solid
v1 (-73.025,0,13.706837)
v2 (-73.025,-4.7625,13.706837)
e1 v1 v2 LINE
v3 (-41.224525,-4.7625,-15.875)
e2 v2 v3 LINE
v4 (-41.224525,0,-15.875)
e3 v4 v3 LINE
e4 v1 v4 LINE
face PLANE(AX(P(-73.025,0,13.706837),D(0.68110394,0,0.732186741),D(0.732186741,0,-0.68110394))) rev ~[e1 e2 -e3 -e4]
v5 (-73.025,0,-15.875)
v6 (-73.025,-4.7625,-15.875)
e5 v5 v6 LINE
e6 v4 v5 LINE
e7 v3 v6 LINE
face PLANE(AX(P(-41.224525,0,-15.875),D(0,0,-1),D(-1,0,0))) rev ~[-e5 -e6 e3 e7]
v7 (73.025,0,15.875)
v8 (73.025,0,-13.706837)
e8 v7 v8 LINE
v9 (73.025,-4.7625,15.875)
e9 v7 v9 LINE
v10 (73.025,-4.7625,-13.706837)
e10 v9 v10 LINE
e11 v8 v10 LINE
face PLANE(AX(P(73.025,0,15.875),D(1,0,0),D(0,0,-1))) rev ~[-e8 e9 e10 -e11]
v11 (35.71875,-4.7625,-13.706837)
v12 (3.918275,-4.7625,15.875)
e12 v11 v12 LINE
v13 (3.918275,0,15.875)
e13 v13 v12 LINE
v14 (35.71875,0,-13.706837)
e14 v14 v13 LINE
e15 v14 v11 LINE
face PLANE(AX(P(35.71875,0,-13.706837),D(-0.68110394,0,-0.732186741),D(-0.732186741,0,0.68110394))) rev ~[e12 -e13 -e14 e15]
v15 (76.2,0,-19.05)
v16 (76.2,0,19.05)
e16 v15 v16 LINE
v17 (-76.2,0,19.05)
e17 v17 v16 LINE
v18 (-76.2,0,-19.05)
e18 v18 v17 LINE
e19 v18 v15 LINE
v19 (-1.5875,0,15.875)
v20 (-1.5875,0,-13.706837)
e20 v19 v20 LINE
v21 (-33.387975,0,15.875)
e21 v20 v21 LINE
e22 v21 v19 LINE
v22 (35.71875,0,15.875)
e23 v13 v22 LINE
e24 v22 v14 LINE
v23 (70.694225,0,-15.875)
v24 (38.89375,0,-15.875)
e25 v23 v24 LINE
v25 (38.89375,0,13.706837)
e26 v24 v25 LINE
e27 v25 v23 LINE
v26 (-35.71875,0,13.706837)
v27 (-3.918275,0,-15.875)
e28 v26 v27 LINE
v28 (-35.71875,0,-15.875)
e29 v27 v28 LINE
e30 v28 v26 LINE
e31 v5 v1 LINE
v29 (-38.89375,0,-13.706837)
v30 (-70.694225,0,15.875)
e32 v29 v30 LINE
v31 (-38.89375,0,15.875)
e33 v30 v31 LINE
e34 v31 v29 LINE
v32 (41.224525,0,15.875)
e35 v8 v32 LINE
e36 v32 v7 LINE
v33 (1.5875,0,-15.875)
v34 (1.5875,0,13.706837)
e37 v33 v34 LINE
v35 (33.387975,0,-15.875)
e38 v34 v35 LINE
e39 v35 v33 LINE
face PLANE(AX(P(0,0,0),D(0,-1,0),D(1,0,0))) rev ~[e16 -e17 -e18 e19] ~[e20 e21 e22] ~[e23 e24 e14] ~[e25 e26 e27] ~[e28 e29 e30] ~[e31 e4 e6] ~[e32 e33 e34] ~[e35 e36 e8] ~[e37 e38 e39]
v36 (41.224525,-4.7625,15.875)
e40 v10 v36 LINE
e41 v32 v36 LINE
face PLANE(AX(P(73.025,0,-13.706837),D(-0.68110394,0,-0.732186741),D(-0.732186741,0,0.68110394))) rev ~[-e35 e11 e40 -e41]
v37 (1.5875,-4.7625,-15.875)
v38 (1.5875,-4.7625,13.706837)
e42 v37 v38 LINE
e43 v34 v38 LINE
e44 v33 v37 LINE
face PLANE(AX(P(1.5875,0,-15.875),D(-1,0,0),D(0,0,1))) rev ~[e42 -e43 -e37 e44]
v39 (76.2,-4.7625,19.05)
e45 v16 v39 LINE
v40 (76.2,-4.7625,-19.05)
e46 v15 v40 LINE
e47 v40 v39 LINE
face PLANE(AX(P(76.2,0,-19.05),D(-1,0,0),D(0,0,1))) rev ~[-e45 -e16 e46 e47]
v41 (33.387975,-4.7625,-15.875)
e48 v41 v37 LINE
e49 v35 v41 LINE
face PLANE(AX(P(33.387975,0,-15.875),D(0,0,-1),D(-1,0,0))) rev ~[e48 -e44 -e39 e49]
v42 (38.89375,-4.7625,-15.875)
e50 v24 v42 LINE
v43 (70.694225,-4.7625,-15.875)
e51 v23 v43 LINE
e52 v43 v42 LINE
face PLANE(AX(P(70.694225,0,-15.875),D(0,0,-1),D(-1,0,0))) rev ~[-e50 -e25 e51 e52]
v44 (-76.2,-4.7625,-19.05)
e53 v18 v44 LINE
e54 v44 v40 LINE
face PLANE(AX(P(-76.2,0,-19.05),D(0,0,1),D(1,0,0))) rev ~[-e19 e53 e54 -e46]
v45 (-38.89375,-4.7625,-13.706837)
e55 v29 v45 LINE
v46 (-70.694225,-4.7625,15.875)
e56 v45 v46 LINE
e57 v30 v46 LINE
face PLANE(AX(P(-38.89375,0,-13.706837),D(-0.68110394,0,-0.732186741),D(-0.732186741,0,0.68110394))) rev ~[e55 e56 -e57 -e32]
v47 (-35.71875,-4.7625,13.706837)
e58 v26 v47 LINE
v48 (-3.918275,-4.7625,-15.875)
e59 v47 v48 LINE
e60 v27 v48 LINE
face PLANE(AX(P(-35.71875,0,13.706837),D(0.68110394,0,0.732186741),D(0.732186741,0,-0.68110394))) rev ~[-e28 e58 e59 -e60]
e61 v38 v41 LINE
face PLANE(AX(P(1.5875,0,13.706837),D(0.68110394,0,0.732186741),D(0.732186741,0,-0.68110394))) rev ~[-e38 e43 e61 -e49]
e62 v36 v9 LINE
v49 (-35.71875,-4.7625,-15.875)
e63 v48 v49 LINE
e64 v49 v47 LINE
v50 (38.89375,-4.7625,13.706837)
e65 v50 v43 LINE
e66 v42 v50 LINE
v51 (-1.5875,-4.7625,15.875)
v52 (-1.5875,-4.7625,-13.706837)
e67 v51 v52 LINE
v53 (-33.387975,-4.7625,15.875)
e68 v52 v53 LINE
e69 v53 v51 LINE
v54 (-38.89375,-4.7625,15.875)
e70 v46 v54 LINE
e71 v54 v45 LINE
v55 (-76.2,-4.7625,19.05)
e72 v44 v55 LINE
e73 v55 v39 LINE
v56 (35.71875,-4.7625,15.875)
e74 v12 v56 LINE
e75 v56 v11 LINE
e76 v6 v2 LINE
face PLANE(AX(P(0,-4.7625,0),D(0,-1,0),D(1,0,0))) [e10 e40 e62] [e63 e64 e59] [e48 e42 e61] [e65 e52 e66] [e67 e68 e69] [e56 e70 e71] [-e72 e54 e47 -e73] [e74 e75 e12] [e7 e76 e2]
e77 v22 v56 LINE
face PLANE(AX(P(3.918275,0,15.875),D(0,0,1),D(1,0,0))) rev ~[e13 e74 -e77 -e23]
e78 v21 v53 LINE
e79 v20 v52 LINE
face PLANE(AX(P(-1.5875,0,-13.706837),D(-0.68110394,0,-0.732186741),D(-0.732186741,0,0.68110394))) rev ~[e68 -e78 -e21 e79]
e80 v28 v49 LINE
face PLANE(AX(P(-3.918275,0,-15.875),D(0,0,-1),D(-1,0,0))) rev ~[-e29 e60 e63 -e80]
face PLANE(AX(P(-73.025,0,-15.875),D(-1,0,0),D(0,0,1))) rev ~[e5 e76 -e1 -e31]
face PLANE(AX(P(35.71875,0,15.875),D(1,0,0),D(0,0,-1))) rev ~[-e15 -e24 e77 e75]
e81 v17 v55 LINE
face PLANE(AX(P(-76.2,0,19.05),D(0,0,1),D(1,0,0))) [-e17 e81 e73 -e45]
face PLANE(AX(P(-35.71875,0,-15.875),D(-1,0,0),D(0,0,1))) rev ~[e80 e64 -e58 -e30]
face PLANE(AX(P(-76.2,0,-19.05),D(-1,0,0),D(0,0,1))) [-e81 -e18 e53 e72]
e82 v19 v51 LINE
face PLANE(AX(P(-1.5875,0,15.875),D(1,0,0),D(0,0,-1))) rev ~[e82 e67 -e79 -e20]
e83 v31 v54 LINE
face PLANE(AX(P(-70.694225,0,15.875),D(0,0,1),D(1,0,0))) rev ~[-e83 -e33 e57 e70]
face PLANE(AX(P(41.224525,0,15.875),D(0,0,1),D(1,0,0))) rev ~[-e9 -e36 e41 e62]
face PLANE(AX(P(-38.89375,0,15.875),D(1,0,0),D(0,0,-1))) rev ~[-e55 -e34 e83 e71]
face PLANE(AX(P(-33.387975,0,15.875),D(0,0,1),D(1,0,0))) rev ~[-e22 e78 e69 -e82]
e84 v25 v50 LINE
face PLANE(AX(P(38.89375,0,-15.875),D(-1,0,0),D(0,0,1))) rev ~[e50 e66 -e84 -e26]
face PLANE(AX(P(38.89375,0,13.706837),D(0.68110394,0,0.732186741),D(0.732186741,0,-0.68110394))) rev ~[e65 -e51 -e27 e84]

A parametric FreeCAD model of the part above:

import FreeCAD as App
import Part
import Sketcher
Q = App.Units.Quantity

doc = App.newDocument("Part")
body = doc.addObject("PartDesign::Body", "Body")

sketch1 = body.newObject("Sketcher::SketchObject", "Sketch")
sketch1.AttachmentSupport = (doc.getObject("XZ_Plane"), [""])
sketch1.MapMode = "FlatFace"
sketch1.addGeometry([
    Part.LineSegment(App.Vector(-76.2, 19.05, 0), App.Vector(-76.2, -19.05, 0)),
    Part.LineSegment(App.Vector(-76.2, -19.05, 0), App.Vector(76.2, -19.05, 0)),
    Part.LineSegment(App.Vector(76.2, -19.05, 0), App.Vector(76.2, 19.05, 0)),
    Part.LineSegment(App.Vector(76.2, 19.05, 0), App.Vector(-76.2, 19.05, 0)),
    Part.LineSegment(App.Vector(-41.224525, -15.875, 0), App.Vector(-73.025, -15.875, 0)),
    Part.LineSegment(App.Vector(-73.025, -15.875, 0), App.Vector(-73.025, 13.706837, 0)),
    Part.LineSegment(App.Vector(-73.025, 13.706837, 0), App.Vector(-41.224525, -15.875, 0)),
    Part.LineSegment(App.Vector(-3.918275, -15.875, 0), App.Vector(-35.71875, -15.875, 0)),
    Part.LineSegment(App.Vector(-35.71875, -15.875, 0), App.Vector(-35.71875, 13.706837, 0)),
    Part.LineSegment(App.Vector(-35.71875, 13.706837, 0), App.Vector(-3.918275, -15.875, 0)),
    Part.LineSegment(App.Vector(33.387975, -15.875, 0), App.Vector(1.5875, -15.875, 0)),
    Part.LineSegment(App.Vector(1.5875, -15.875, 0), App.Vector(1.5875, 13.706837, 0)),
    Part.LineSegment(App.Vector(1.5875, 13.706837, 0), App.Vector(33.387975, -15.875, 0)),
    Part.LineSegment(App.Vector(70.694225, -15.875, 0), App.Vector(38.89375, -15.875, 0)),
    Part.LineSegment(App.Vector(38.89375, -15.875, 0), App.Vector(38.89375, 13.706837, 0)),
    Part.LineSegment(App.Vector(38.89375, 13.706837, 0), App.Vector(70.694225, -15.875, 0)),
    Part.LineSegment(App.Vector(-38.89375, 15.875, 0), App.Vector(-38.89375, -13.706837, 0)),
    Part.LineSegment(App.Vector(-38.89375, -13.706837, 0), App.Vector(-70.694225, 15.875, 0)),
    Part.LineSegment(App.Vector(-70.694225, 15.875, 0), App.Vector(-38.89375, 15.875, 0)),
    Part.LineSegment(App.Vector(-1.5875, -13.706837, 0), App.Vector(-33.387975, 15.875, 0)),
    Part.LineSegment(App.Vector(-33.387975, 15.875, 0), App.Vector(-1.5875, 15.875, 0)),
    Part.LineSegment(App.Vector(-1.5875, 15.875, 0), App.Vector(-1.5875, -13.706837, 0)),
    Part.LineSegment(App.Vector(35.71875, 15.875, 0), App.Vector(35.71875, -13.706837, 0)),
    Part.LineSegment(App.Vector(35.71875, -13.706837, 0), App.Vector(3.918275, 15.875, 0)),
    Part.LineSegment(App.Vector(3.918275, 15.875, 0), App.Vector(35.71875, 15.875, 0)),
    Part.LineSegment(App.Vector(73.025, -13.706837, 0), App.Vector(41.224525, 15.875, 0)),
    Part.LineSegment(App.Vector(41.224525, 15.875, 0), App.Vector(73.025, 15.875, 0)),
    Part.LineSegment(App.Vector(73.025, 15.875, 0), App.Vector(73.025, -13.706837, 0)),
], False)
sketch1.addConstraint([
    Sketcher.Constraint("Coincident", 0, 2, 1, 1),
    Sketcher.Constraint("Coincident", 1, 2, 2, 1),
    Sketcher.Constraint("Coincident", 2, 2, 3, 1),
    Sketcher.Constraint("Coincident", 3, 2, 0, 1),
    Sketcher.Constraint("Coincident", 4, 2, 5, 1),
    Sketcher.Constraint("Coincident", 5, 2, 6, 1),
    Sketcher.Constraint("Coincident", 6, 2, 4, 1),
    Sketcher.Constraint("Coincident", 7, 2, 8, 1),
    Sketcher.Constraint("Coincident", 8, 2, 9, 1),
    Sketcher.Constraint("Coincident", 9, 2, 7, 1),
    Sketcher.Constraint("Coincident", 10, 2, 11, 1),
    Sketcher.Constraint("Coincident", 11, 2, 12, 1),
    Sketcher.Constraint("Coincident", 12, 2, 10, 1),
    Sketcher.Constraint("Coincident", 13, 2, 14, 1),
    Sketcher.Constraint("Coincident", 14, 2, 15, 1),
    Sketcher.Constraint("Coincident", 15, 2, 13, 1),
    Sketcher.Constraint("Coincident", 16, 2, 17, 1),
    Sketcher.Constraint("Coincident", 17, 2, 18, 1),
    Sketcher.Constraint("Coincident", 18, 2, 16, 1),
    Sketcher.Constraint("Coincident", 19, 2, 20, 1),
    Sketcher.Constraint("Coincident", 20, 2, 21, 1),
    Sketcher.Constraint("Coincident", 21, 2, 19, 1),
    Sketcher.Constraint("Coincident", 22, 2, 23, 1),
    Sketcher.Constraint("Coincident", 23, 2, 24, 1),
    Sketcher.Constraint("Coincident", 24, 2, 22, 1),
    Sketcher.Constraint("Coincident", 25, 2, 26, 1),
    Sketcher.Constraint("Coincident", 26, 2, 27, 1),
    Sketcher.Constraint("Coincident", 27, 2, 25, 1),
    Sketcher.Constraint("Vertical", 0),
    Sketcher.Constraint("Horizontal", 1),
    Sketcher.Constraint("Vertical", 2),
    Sketcher.Constraint("Horizontal", 3),
    Sketcher.Constraint("Horizontal", 4),
    Sketcher.Constraint("Vertical", 5),
    Sketcher.Constraint("Horizontal", 7),
    Sketcher.Constraint("Vertical", 8),
    Sketcher.Constraint("Horizontal", 10),
    Sketcher.Constraint("Vertical", 11),
    Sketcher.Constraint("Horizontal", 13),
    Sketcher.Constraint("Vertical", 14),
    Sketcher.Constraint("Vertical", 16),
    Sketcher.Constraint("Horizontal", 18),
    Sketcher.Constraint("Horizontal", 20),
    Sketcher.Constraint("Vertical", 21),
    Sketcher.Constraint("Vertical", 22),
    Sketcher.Constraint("Horizontal", 24),
    Sketcher.Constraint("Horizontal", 26),
    Sketcher.Constraint("Vertical", 27),
    Sketcher.Constraint("Symmetric", 0, 2, 2, 2, -1, 1),
    Sketcher.Constraint("Symmetric", 14, 2, 16, 2, -1, 1),
    Sketcher.Constraint("Symmetric", 15, 2, 17, 2, -1, 1),
    Sketcher.Constraint("Symmetric", 12, 2, 19, 2, -1, 1),
    Sketcher.Constraint("Symmetric", 11, 2, 21, 2, -1, 1),
    Sketcher.Constraint("Symmetric", 8, 2, 22, 2, -1, 1),
    Sketcher.Constraint("Symmetric", 9, 2, 23, 2, -1, 1),
    Sketcher.Constraint("Symmetric", 6, 2, 25, 2, -1, 1),
    Sketcher.Constraint("Symmetric", 5, 2, 27, 2, -1, 1),
    Sketcher.Constraint("Parallel", 6, 9),
    Sketcher.Constraint("Parallel", 9, 12),
    Sketcher.Constraint("Parallel", 12, 15),
    Sketcher.Constraint("Horizontal", 6, 2, 7, 2),
    Sketcher.Constraint("Horizontal", 5, 2, 8, 2),
    Sketcher.Constraint("Horizontal", 9, 2, 10, 2),
    Sketcher.Constraint("Horizontal", 8, 2, 11, 2),
    Sketcher.Constraint("Horizontal", 12, 2, 13, 2),
    Sketcher.Constraint("Horizontal", 11, 2, 14, 2),
    Sketcher.Constraint("DistanceX", 1, 1, 1, 2, Q("6 in")),
    Sketcher.Constraint("DistanceY", 0, 2, 0, 1, Q("1.5 in")),
    Sketcher.Constraint("DistanceY", 4, 2, 17, 2, Q("1.25 in")),
    Sketcher.Constraint("DistanceX", 4, 2, -1, 1, Q("2.875 in")),
    Sketcher.Constraint("DistanceX", 7, 2, -1, 1, Q("1.40625 in")),
    Sketcher.Constraint("DistanceX", -1, 1, 10, 2, Q("0.0625 in")),
    Sketcher.Constraint("DistanceX", -1, 1, 13, 2, Q("1.53125 in")),
    Sketcher.Constraint("Distance", 6, 43.432192),
    Sketcher.Constraint("DistanceX", 4, 2, 4, 1, 31.800475),
])
pad1 = body.newObject("PartDesign::Pad", "Pad")
pad1.Profile = sketch1
pad1.Length = Q("0.1875 in")

doc.recompute()
